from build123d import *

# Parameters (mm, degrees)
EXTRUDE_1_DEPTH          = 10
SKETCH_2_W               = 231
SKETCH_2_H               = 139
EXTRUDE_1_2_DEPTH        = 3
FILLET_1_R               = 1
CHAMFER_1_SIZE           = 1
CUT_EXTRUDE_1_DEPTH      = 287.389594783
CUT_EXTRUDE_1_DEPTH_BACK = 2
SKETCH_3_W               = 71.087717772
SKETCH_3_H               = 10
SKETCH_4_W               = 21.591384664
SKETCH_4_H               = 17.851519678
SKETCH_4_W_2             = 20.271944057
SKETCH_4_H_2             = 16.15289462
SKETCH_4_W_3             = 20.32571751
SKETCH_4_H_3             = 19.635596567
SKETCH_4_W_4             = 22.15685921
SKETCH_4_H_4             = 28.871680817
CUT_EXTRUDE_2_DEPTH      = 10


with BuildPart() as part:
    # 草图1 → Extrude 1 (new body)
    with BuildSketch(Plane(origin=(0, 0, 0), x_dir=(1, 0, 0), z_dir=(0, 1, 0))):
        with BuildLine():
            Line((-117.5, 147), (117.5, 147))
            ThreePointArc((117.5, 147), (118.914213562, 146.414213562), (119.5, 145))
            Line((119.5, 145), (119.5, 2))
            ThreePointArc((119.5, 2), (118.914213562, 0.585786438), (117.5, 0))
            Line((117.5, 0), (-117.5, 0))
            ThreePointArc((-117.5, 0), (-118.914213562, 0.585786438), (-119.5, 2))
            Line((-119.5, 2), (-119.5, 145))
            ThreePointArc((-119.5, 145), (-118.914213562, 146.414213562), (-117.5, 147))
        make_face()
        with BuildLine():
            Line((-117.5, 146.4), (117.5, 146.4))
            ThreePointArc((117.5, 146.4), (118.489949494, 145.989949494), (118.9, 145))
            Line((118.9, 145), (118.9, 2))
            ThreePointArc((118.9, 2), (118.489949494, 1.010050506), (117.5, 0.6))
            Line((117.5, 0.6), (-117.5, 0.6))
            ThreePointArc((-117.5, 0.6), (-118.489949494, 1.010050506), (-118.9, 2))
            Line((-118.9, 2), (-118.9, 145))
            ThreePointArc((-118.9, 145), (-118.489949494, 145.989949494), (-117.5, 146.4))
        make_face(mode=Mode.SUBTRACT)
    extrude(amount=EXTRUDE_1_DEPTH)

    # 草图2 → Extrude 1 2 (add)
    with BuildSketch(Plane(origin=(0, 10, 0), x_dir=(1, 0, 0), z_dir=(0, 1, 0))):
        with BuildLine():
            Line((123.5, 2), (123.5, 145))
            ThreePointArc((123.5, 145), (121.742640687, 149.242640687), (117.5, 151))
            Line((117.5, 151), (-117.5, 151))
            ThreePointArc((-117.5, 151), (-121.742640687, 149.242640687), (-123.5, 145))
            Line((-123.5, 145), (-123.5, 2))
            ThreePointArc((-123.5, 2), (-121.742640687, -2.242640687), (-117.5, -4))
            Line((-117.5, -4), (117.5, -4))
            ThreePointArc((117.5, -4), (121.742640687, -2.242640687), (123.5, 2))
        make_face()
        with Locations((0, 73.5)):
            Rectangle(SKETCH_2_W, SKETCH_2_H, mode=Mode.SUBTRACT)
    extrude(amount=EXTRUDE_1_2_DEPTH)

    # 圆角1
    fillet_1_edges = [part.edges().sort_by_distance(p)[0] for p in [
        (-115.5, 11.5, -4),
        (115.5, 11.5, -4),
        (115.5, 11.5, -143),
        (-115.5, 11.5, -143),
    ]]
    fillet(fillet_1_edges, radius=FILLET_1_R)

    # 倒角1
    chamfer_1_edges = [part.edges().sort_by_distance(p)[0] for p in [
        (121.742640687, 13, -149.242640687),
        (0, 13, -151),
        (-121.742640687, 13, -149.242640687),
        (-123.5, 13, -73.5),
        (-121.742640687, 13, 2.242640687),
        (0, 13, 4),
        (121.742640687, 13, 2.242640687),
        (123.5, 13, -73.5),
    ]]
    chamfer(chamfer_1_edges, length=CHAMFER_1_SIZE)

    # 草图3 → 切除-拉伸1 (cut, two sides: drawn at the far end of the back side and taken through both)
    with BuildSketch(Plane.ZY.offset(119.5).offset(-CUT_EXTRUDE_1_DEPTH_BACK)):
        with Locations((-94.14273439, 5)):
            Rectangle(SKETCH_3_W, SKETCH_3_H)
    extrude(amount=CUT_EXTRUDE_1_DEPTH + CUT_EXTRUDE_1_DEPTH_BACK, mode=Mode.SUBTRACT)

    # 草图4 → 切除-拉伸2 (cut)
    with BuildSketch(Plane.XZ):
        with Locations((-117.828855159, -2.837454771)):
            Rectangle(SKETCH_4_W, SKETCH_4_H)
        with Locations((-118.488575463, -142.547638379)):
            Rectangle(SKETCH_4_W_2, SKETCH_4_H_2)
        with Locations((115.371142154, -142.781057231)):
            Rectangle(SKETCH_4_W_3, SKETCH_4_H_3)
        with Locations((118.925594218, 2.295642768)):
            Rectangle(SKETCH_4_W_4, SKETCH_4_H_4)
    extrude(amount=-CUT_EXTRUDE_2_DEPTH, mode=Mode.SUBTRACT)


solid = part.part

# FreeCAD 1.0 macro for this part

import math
import FreeCAD as App
import Part
import Sketcher

V = App.Vector


def edges_at(feature, points):
    """Names of the edges that pass closest to the given points."""
    edges = feature.Shape.Edges
    near = lambda p: min(range(len(edges)), key=lambda i: edges[i].distToShape(Part.Vertex(*p))[0])
    return sorted({f"Edge{near(p) + 1}" for p in points})

doc = App.newDocument("Part")
body = doc.addObject("PartDesign::Body", "Body")

# Sketch on XZ plane
sketch1 = doc.addObject("Sketcher::SketchObject", "Sketch")
body.addObject(sketch1)
sketch1.AttachmentSupport = (doc.XZ_Plane, [""])
sketch1.MapMode = "FlatFace"
sketch1.addGeometry(Part.LineSegment(V(117.5, -147, 0), V(-117.5, -147, 0)), False)
sketch1.addGeometry(Part.ArcOfCircle(Part.Circle(V(-117.5, -145, 0), V(0, 0, 1), 2), math.radians(-180), math.radians(-90)), False)
sketch1.addGeometry(Part.LineSegment(V(-119.5, -145, 0), V(-119.5, -2, 0)), False)
sketch1.addGeometry(Part.ArcOfCircle(Part.Circle(V(-117.5, -2, 0), V(0, 0, 1), 2), math.radians(90), math.radians(180)), False)
sketch1.addGeometry(Part.LineSegment(V(-117.5, 0, 0), V(117.5, 0, 0)), False)
sketch1.addGeometry(Part.ArcOfCircle(Part.Circle(V(117.5, -2, 0), V(0, 0, 1), 2), math.radians(0), math.radians(90)), False)
sketch1.addGeometry(Part.LineSegment(V(119.5, -2, 0), V(119.5, -145, 0)), False)
sketch1.addGeometry(Part.ArcOfCircle(Part.Circle(V(117.5, -145, 0), V(0, 0, 1), 2), math.radians(-90), math.radians(0)), False)
sketch1.addGeometry(Part.LineSegment(V(-117.5, -146.4, 0), V(117.5, -146.4, 0)), False)
sketch1.addGeometry(Part.ArcOfCircle(Part.Circle(V(117.5, -145, 0), V(0, 0, 1), 1.4), math.radians(-90), math.radians(0)), False)
sketch1.addGeometry(Part.LineSegment(V(118.9, -145, 0), V(118.9, -2, 0)), False)
sketch1.addGeometry(Part.ArcOfCircle(Part.Circle(V(117.5, -2, 0), V(0, 0, 1), 1.4), math.radians(0), math.radians(90)), False)
sketch1.addGeometry(Part.LineSegment(V(117.5, -0.6, 0), V(-117.5, -0.6, 0)), False)
sketch1.addGeometry(Part.ArcOfCircle(Part.Circle(V(-117.5, -2, 0), V(0, 0, 1), 1.4), math.radians(90), math.radians(180)), False)
sketch1.addGeometry(Part.LineSegment(V(-118.9, -2, 0), V(-118.9, -145, 0)), False)
sketch1.addGeometry(Part.ArcOfCircle(Part.Circle(V(-117.5, -145, 0), V(0, 0, 1), 1.4), math.radians(180), math.radians(270)), False)
sketch1.addConstraint(Sketcher.Constraint("Tangent", 0, 2, 1, 2))
sketch1.addConstraint(Sketcher.Constraint("Tangent", 1, 1, 2, 1))
sketch1.addConstraint(Sketcher.Constraint("Tangent", 2, 2, 3, 2))
sketch1.addConstraint(Sketcher.Constraint("Tangent", 3, 1, 4, 1))
sketch1.addConstraint(Sketcher.Constraint("Tangent", 4, 2, 5, 2))
sketch1.addConstraint(Sketcher.Constraint("Tangent", 5, 1, 6, 1))
sketch1.addConstraint(Sketcher.Constraint("Tangent", 6, 2, 7, 2))
sketch1.addConstraint(Sketcher.Constraint("Tangent", 7, 1, 0, 1))
sketch1.addConstraint(Sketcher.Constraint("Tangent", 8, 2, 9, 1))
sketch1.addConstraint(Sketcher.Constraint("Tangent", 9, 2, 10, 1))
sketch1.addConstraint(Sketcher.Constraint("Tangent", 10, 2, 11, 1))
sketch1.addConstraint(Sketcher.Constraint("Tangent", 11, 2, 12, 1))
sketch1.addConstraint(Sketcher.Constraint("Tangent", 12, 2, 13, 1))
sketch1.addConstraint(Sketcher.Constraint("Tangent", 13, 2, 14, 1))
sketch1.addConstraint(Sketcher.Constraint("Tangent", 14, 2, 15, 1))
sketch1.addConstraint(Sketcher.Constraint("Tangent", 15, 2, 8, 1))
sketch1.addConstraint(Sketcher.Constraint("Horizontal", 0))
sketch1.addConstraint(Sketcher.Constraint("Vertical", 2))
sketch1.addConstraint(Sketcher.Constraint("Horizontal", 4))
sketch1.addConstraint(Sketcher.Constraint("Vertical", 6))
sketch1.addConstraint(Sketcher.Constraint("Horizontal", 8))
sketch1.addConstraint(Sketcher.Constraint("Vertical", 10))
sketch1.addConstraint(Sketcher.Constraint("Horizontal", 12))
sketch1.addConstraint(Sketcher.Constraint("Vertical", 14))
sketch1.addConstraint(Sketcher.Constraint("Coincident", 9, 3, 7, 3))
sketch1.addConstraint(Sketcher.Constraint("Coincident", 11, 3, 5, 3))
sketch1.addConstraint(Sketcher.Constraint("Coincident", 13, 3, 3, 3))
sketch1.addConstraint(Sketcher.Constraint("Equal", 1, 3))
sketch1.addConstraint(Sketcher.Constraint("Equal", 3, 5))
sketch1.addConstraint(Sketcher.Constraint("Equal", 5, 7))
sketch1.addConstraint(Sketcher.Constraint("Equal", 13, 15))
sketch1.addConstraint(Sketcher.Constraint("Symmetric", 3, 1, 4, 2, -1, 1))
sketch1.addConstraint(Sketcher.Constraint("Radius", 1, 2.0))
sketch1.addConstraint(Sketcher.Constraint("Radius", 9, 1.4))
sketch1.addConstraint(Sketcher.Constraint("DistanceX", 0, 2, 0, 1, 235.0))
sketch1.addConstraint(Sketcher.Constraint("DistanceY", 2, 1, 2, 2, 143.0))
pad1 = doc.addObject("PartDesign::Pad", "Pad")
body.addObject(pad1)
pad1.Profile = sketch1
pad1.Length = 10
pad1.Reversed = True

# Sketch on XZ plane
sketch2 = doc.addObject("Sketcher::SketchObject", "Sketch001")
body.addObject(sketch2)
sketch2.AttachmentSupport = (doc.XZ_Plane, [""])
sketch2.MapMode = "FlatFace"
sketch2.AttachmentOffset = App.Placement(V(0, 0, -10), App.Rotation())
sketch2.addGeometry(Part.LineSegment(V(124, -2, 0), V(124, -145, 0)), False)
sketch2.addGeometry(Part.ArcOfCircle(Part.Circle(V(118, -145, 0), V(0, 0, 1), 6), math.radians(-90), math.radians(0)), False)
sketch2.addGeometry(Part.LineSegment(V(118, -151, 0), V(-118, -151, 0)), False)
sketch2.addGeometry(Part.ArcOfCircle(Part.Circle(V(-118, -145, 0), V(0, 0, 1), 6), math.radians(180), math.radians(270)), False)
sketch2.addGeometry(Part.LineSegment(V(-124, -145, 0), V(-124, -2, 0)), False)
sketch2.addGeometry(Part.ArcOfCircle(Part.Circle(V(-118, -2, 0), V(0, 0, 1), 6), math.radians(90), math.radians(180)), False)
sketch2.addGeometry(Part.LineSegment(V(-118, 4, 0), V(118, 4, 0)), False)
sketch2.addGeometry(Part.ArcOfCircle(Part.Circle(V(118, -2, 0), V(0, 0, 1), 6), math.radians(0), math.radians(90)), False)
sketch2.addGeometry(Part.LineSegment(V(116, -4, 0), V(-116, -4, 0)), False)
sketch2.addGeometry(Part.LineSegment(V(-116, -4, 0), V(-116, -143, 0)), False)
sketch2.addGeometry(Part.LineSegment(V(-116, -143, 0), V(116, -143, 0)), False)
sketch2.addGeometry(Part.LineSegment(V(116, -143, 0), V(116, -4, 0)), False)
sketch2.addConstraint(Sketcher.Constraint("Tangent", 0, 2, 1, 2))
sketch2.addConstraint(Sketcher.Constraint("Tangent", 1, 1, 2, 1))
sketch2.addConstraint(Sketcher.Constraint("Tangent", 2, 2, 3, 2))
sketch2.addConstraint(Sketcher.Constraint("Tangent", 3, 1, 4, 1))
sketch2.addConstraint(Sketcher.Constraint("Tangent", 4, 2, 5, 2))
sketch2.addConstraint(Sketcher.Constraint("Tangent", 5, 1, 6, 1))
sketch2.addConstraint(Sketcher.Constraint("Tangent", 6, 2, 7, 2))
sketch2.addConstraint(Sketcher.Constraint("Tangent", 7, 1, 0, 1))
sketch2.addConstraint(Sketcher.Constraint("Coincident", 8, 2, 9, 1))
sketch2.addConstraint(Sketcher.Constraint("Coincident", 9, 2, 10, 1))
sketch2.addConstraint(Sketcher.Constraint("Coincident", 10, 2, 11, 1))
sketch2.addConstraint(Sketcher.Constraint("Coincident", 11, 2, 8, 1))
sketch2.addConstraint(Sketcher.Constraint("Vertical", 0))
sketch2.addConstraint(Sketcher.Constraint("Horizontal", 2))
sketch2.addConstraint(Sketcher.Constraint("Vertical", 4))
sketch2.addConstraint(Sketcher.Constraint("Horizontal", 6))
sketch2.addConstraint(Sketcher.Constraint("Horizontal", 8))
sketch2.addConstraint(Sketcher.Constraint("Vertical", 9))
sketch2.addConstraint(Sketcher.Constraint("Horizontal", 10))
sketch2.addConstraint(Sketcher.Constraint("Vertical", 11))
sketch2.addConstraint(Sketcher.Constraint("Equal", 1, 3))
sketch2.addConstraint(Sketcher.Constraint("Equal", 3, 5))
sketch2.addConstraint(Sketcher.Constraint("Equal", 5, 7))
sketch2.addConstraint(Sketcher.Constraint("Radius", 1, 6.0))
sketch2.addConstraint(Sketcher.Constraint("DistanceX", 2, 2, 2, 1, 235.0))
sketch2.addConstraint(Sketcher.Constraint("DistanceX", 8, 2, 8, 1, 231.0))
sketch2.addConstraint(Sketcher.Constraint("DistanceY", 0, 2, 0, 1, 143.0))
sketch2.addConstraint(Sketcher.Constraint("DistanceY", 9, 2, 9, 1, 139.0))
sketch2.addConstraint(Sketcher.Constraint("DistanceY", 1, 3, -1, 1, 145.0))
sketch2.addConstraint(Sketcher.Constraint("DistanceY", 8, 2, -1, 1, 4.0))
sketch2.addConstraint(Sketcher.Constraint("DistanceX", 5, 3, 8, 2, 2.0))
sketch2.addConstraint(Sketcher.Constraint("DistanceX", -1, 1, 1, 3, 117.5))
pad2 = doc.addObject("PartDesign::Pad", "Pad001")
body.addObject(pad2)
pad2.Profile = sketch2
pad2.Length = 3
pad2.Reversed = True
doc.recompute()

fillet = doc.addObject("PartDesign::Fillet", "Fillet")
body.addObject(fillet)
fillet.Base = (pad2, edges_at(pad2, [
    (-115.5, 11.5, -4),
    (115.5, 11.5, -4),
    (115.5, 11.5, -143),
    (-115.5, 11.5, -143),
]))
fillet.Radius = 1
doc.recompute()

chamfer = doc.addObject("PartDesign::Chamfer", "Chamfer")
body.addObject(chamfer)
chamfer.Base = (fillet, edges_at(fillet, [
    (121.743, 13, -149.243),
    (0, 13, -151),
    (-121.743, 13, -149.243),
    (-123.5, 13, -73.5),
    (-121.743, 13, 2.243),
    (0, 13, 4),
    (121.743, 13, 2.243),
    (123.5, 13, -73.5),
]))
chamfer.Size = 1

# Sketch on YZ plane
sketch3 = doc.addObject("Sketcher::SketchObject", "Sketch002")
body.addObject(sketch3)
sketch3.AttachmentSupport = (doc.YZ_Plane, [""])
sketch3.MapMode = "FlatFace"
sketch3.AttachmentOffset = App.Placement(V(0, 0, -119.5), App.Rotation())
sketch3.addGeometry(Part.LineSegment(V(10, -130, 0), V(0, -130, 0)), False)
sketch3.addGeometry(Part.LineSegment(V(0, -130, 0), V(0, -59, 0)), False)
sketch3.addGeometry(Part.LineSegment(V(0, -59, 0), V(10, -59, 0)), False)
sketch3.addGeometry(Part.LineSegment(V(10, -59, 0), V(10, -130, 0)), False)
sketch3.addConstraint(Sketcher.Constraint("Coincident", 0, 2, 1, 1))
sketch3.addConstraint(Sketcher.Constraint("Coincident", 1, 2, 2, 1))
sketch3.addConstraint(Sketcher.Constraint("Coincident", 2, 2, 3, 1))
sketch3.addConstraint(Sketcher.Constraint("Coincident", 3, 2, 0, 1))
sketch3.addConstraint(Sketcher.Constraint("Horizontal", 0))
sketch3.addConstraint(Sketcher.Constraint("Vertical", 1))
sketch3.addConstraint(Sketcher.Constraint("Horizontal", 2))
sketch3.addConstraint(Sketcher.Constraint("Vertical", 3))
sketch3.addConstraint(Sketcher.Constraint("PointOnObject", 0, 2, -2))
sketch3.addConstraint(Sketcher.Constraint("DistanceX", 0, 2, 0, 1, 10.0))
sketch3.addConstraint(Sketcher.Constraint("DistanceY", 1, 1, 1, 2, 71.087718))
sketch3.addConstraint(Sketcher.Constraint("DistanceY", 0, 2, -1, 1, 129.686593))
pocket1 = doc.addObject("PartDesign::Pocket", "Pocket")
body.addObject(pocket1)
pocket1.Profile = sketch3
pocket1.Type = "TwoLengths"
pocket1.Length = 287.389595
pocket1.Length2 = 2

# Sketch on XZ plane
sketch4 = doc.addObject("Sketcher::SketchObject", "Sketch003")
body.addObject(sketch4)
sketch4.AttachmentSupport = (doc.XZ_Plane, [""])
sketch4.MapMode = "FlatFace"
sketch4.addGeometry(Part.LineSegment(V(-129, 6, 0), V(-129, -12, 0)), False)
sketch4.addGeometry(Part.LineSegment(V(-129, -12, 0), V(-107, -12, 0)), False)
sketch4.addGeometry(Part.LineSegment(V(-107, -12, 0), V(-107, 6, 0)), False)
sketch4.addGeometry(Part.LineSegment(V(-107, 6, 0), V(-129, 6, 0)), False)
sketch4.addGeometry(Part.LineSegment(V(-129, -134, 0), V(-129, -151, 0)), False)
sketch4.addGeometry(Part.LineSegment(V(-129, -151, 0), V(-108, -151, 0)), False)
sketch4.addGeometry(Part.LineSegment(V(-108, -151, 0), V(-108, -134, 0)), False)
sketch4.addGeometry(Part.LineSegment(V(-108, -134, 0), V(-129, -134, 0)), False)
sketch4.addGeometry(Part.LineSegment(V(105, -133, 0), V(105, -153, 0)), False)
sketch4.addGeometry(Part.LineSegment(V(105, -153, 0), V(126, -153, 0)), False)
sketch4.addGeometry(Part.LineSegment(V(126, -153, 0), V(126, -133, 0)), False)
sketch4.addGeometry(Part.LineSegment(V(126, -133, 0), V(105, -133, 0)), False)
sketch4.addGeometry(Part.LineSegment(V(108, 17, 0), V(108, -12, 0)), False)
sketch4.addGeometry(Part.LineSegment(V(108, -12, 0), V(130, -12, 0)), False)
sketch4.addGeometry(Part.LineSegment(V(130, -12, 0), V(130, 17, 0)), False)
sketch4.addGeometry(Part.LineSegment(V(130, 17, 0), V(108, 17, 0)), False)
sketch4.addConstraint(Sketcher.Constraint("Coincident", 0, 2, 1, 1))
sketch4.addConstraint(Sketcher.Constraint("Coincident", 1, 2, 2, 1))
sketch4.addConstraint(Sketcher.Constraint("Coincident", 2, 2, 3, 1))
sketch4.addConstraint(Sketcher.Constraint("Coincident", 3, 2, 0, 1))
sketch4.addConstraint(Sketcher.Constraint("Coincident", 4, 2, 5, 1))
sketch4.addConstraint(Sketcher.Constraint("Coincident", 5, 2, 6, 1))
sketch4.addConstraint(Sketcher.Constraint("Coincident", 6, 2, 7, 1))
sketch4.addConstraint(Sketcher.Constraint("Coincident", 7, 2, 4, 1))
sketch4.addConstraint(Sketcher.Constraint("Coincident", 8, 2, 9, 1))
sketch4.addConstraint(Sketcher.Constraint("Coincident", 9, 2, 10, 1))
sketch4.addConstraint(Sketcher.Constraint("Coincident", 10, 2, 11, 1))
sketch4.addConstraint(Sketcher.Constraint("Coincident", 11, 2, 8, 1))
sketch4.addConstraint(Sketcher.Constraint("Coincident", 12, 2, 13, 1))
sketch4.addConstraint(Sketcher.Constraint("Coincident", 13, 2, 14, 1))
sketch4.addConstraint(Sketcher.Constraint("Coincident", 14, 2, 15, 1))
sketch4.addConstraint(Sketcher.Constraint("Coincident", 15, 2, 12, 1))
sketch4.addConstraint(Sketcher.Constraint("Vertical", 0))
sketch4.addConstraint(Sketcher.Constraint("Horizontal", 1))
sketch4.addConstraint(Sketcher.Constraint("Vertical", 2))
sketch4.addConstraint(Sketcher.Constraint("Horizontal", 3))
sketch4.addConstraint(Sketcher.Constraint("Vertical", 4))
sketch4.addConstraint(Sketcher.Constraint("Horizontal", 5))
sketch4.addConstraint(Sketcher.Constraint("Vertical", 6))
sketch4.addConstraint(Sketcher.Constraint("Horizontal", 7))
sketch4.addConstraint(Sketcher.Constraint("Vertical", 8))
sketch4.addConstraint(Sketcher.Constraint("Horizontal", 9))
sketch4.addConstraint(Sketcher.Constraint("Vertical", 10))
sketch4.addConstraint(Sketcher.Constraint("Horizontal", 11))
sketch4.addConstraint(Sketcher.Constraint("Vertical", 12))
sketch4.addConstraint(Sketcher.Constraint("Horizontal", 13))
sketch4.addConstraint(Sketcher.Constraint("Vertical", 14))
sketch4.addConstraint(Sketcher.Constraint("Horizontal", 15))
sketch4.addConstraint(Sketcher.Constraint("Vertical", 3, 2, 4, 2))
sketch4.addConstraint(Sketcher.Constraint("DistanceX", -1, 1, 9, 2, 125.534001))
sketch4.addConstraint(Sketcher.Constraint("DistanceX", 13, 1, 13, 2, 22.156859))
sketch4.addConstraint(Sketcher.Constraint("DistanceY", 0, 2, 0, 1, 17.85152))
sketch4.addConstraint(Sketcher.Constraint("DistanceY", 12, 2, 12, 1, 28.871681))
sketch4.addConstraint(Sketcher.Constraint("DistanceX", 1, 1, 1, 2, 21.591385))
sketch4.addConstraint(Sketcher.Constraint("DistanceX", 5, 1, 5, 2, 20.271944))
sketch4.addConstraint(Sketcher.Constraint("DistanceX", 9, 1, 9, 2, 20.325718))
sketch4.addConstraint(Sketcher.Constraint("DistanceY", 4, 2, 4, 1, 16.152895))
sketch4.addConstraint(Sketcher.Constraint("DistanceY", 8, 2, 8, 1, 19.635597))
sketch4.addConstraint(Sketcher.Constraint("DistanceY", 6, 2, -1, 1, 134.471191))
sketch4.addConstraint(Sketcher.Constraint("DistanceY", 10, 2, -1, 1, 132.963259))
sketch4.addConstraint(Sketcher.Constraint("DistanceY", 4, 2, 0, 2, 138.860871))
sketch4.addConstraint(Sketcher.Constraint("DistanceX", 4, 2, 8, 2, 233.832831))
sketch4.addConstraint(Sketcher.Constraint("DistanceX", 11, 2, 12, 2, 2.638881))
sketch4.addConstraint(Sketcher.Constraint("DistanceY", 11, 2, 12, 2, 120.823061))
pocket2 = doc.addObject("PartDesign::Pocket", "Pocket001")
body.addObject(pocket2)
pocket2.Profile = sketch4
pocket2.Length = 10

doc.recompute()
